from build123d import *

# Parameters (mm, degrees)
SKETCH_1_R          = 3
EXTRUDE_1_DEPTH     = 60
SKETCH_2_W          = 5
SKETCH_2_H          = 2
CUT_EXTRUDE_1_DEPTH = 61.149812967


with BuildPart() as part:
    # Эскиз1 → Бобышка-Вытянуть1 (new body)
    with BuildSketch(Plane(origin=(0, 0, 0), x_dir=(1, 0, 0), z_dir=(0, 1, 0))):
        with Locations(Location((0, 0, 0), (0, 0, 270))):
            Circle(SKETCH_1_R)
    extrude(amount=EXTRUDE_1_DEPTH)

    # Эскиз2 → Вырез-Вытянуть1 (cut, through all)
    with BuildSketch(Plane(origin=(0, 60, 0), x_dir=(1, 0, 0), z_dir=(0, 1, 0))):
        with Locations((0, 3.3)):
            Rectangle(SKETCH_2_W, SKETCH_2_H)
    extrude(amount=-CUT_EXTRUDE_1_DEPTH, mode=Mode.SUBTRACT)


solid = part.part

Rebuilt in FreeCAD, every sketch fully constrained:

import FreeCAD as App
import Part
import Sketcher

V = App.Vector

doc = App.newDocument("Part")
params = doc.addObject("Spreadsheet::Sheet", "Params")
for row, (alias, value) in enumerate([
    ("sketch1_diameter", "6 mm"),
    ("pad1_length", "60 mm"),
    ("sketch2_width", "5 mm"),
    ("sketch2_height", "2 mm"),
], start=1):
    params.set(f"A{row}", alias)
    params.set(f"B{row}", "=" + value)
    params.setAlias(f"B{row}", alias)

body = doc.addObject("PartDesign::Body", "Body")

sketch1 = doc.addObject("Sketcher::SketchObject", "Sketch")
body.addObject(sketch1)
sketch1.AttachmentSupport = (doc.XZ_Plane, [""])
sketch1.MapMode = "FlatFace"
sketch1.addGeometry(Part.Circle(V(0, 0, 0), V(0, 0, 1), 3), False)
sketch1.addConstraint([
    Sketcher.Constraint("Coincident", 0, 3, -1, 1),
    Sketcher.Constraint("Diameter", 0, 6.0),
])
sketch1.setExpression("Constraints[1]", "Params.sketch1_diameter")
pad1 = doc.addObject("PartDesign::Pad", "Pad")
body.addObject(pad1)
pad1.Profile = sketch1
pad1.setExpression("Length", "Params.pad1_length")
pad1.Reversed = True

sketch2 = doc.addObject("Sketcher::SketchObject", "Sketch001")
body.addObject(sketch2)
sketch2.AttachmentSupport = (doc.XZ_Plane, [""])
sketch2.MapMode = "FlatFace"
sketch2.AttachmentOffset = App.Placement(V(0, 0, -60), App.Rotation())
sketch2.addGeometry([
    Part.LineSegment(V(-2.5, -4.3, 0), V(-2.5, -2.3, 0)),
    Part.LineSegment(V(-2.5, -2.3, 0), V(2.5, -2.3, 0)),
    Part.LineSegment(V(2.5, -2.3, 0), V(2.5, -4.3, 0)),
    Part.LineSegment(V(2.5, -4.3, 0), V(-2.5, -4.3, 0)),
], False)
sketch2.addConstraint([
    Sketcher.Constraint("Coincident", 0, 2, 1, 1),
    Sketcher.Constraint("Coincident", 1, 2, 2, 1),
    Sketcher.Constraint("Coincident", 2, 2, 3, 1),
    Sketcher.Constraint("Coincident", 3, 2, 0, 1),
    Sketcher.Constraint("Vertical", 0),
    Sketcher.Constraint("Horizontal", 1),
    Sketcher.Constraint("Vertical", 2),
    Sketcher.Constraint("Horizontal", 3),
    Sketcher.Constraint("DistanceX", 1, 1, 1, 2, 5.0),
    Sketcher.Constraint("DistanceY", 0, 1, 0, 2, 2.0),
    Sketcher.Constraint("DistanceX", 0, 2, -1, 1, 2.5),
    Sketcher.Constraint("DistanceY", 0, 2, -1, 1, 2.3),
])
sketch2.setExpression("Constraints[8]", "Params.sketch2_width")
sketch2.setExpression("Constraints[9]", "Params.sketch2_height")
pocket1 = doc.addObject("PartDesign::Pocket", "Pocket")
body.addObject(pocket1)
pocket1.Profile = sketch2
pocket1.Type = "ThroughAll"
pocket1.Reversed = True

doc.recompute()
